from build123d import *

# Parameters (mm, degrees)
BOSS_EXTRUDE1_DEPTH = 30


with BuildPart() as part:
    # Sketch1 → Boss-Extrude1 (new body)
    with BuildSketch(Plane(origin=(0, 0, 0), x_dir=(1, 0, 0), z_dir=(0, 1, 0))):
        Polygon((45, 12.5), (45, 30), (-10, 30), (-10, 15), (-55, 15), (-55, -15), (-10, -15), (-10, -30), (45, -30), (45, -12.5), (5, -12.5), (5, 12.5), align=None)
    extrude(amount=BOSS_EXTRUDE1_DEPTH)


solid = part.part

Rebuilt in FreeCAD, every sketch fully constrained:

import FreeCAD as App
import Part
import Sketcher

V = App.Vector
Q = App.Units.Quantity


def add_polygon(sketch, points):
    """Adds a closed chain of lines whose ends are joined by coincident constraints."""
    first, n = sketch.GeometryCount, len(points)
    for a, b in zip(points, points[1:] + points[:1]):
        sketch.addGeometry(Part.LineSegment(App.Vector(*a, 0), App.Vector(*b, 0)), False)
    for i in range(n):
        sketch.addConstraint(Sketcher.Constraint("Coincident", first + i, 2, first + (i + 1) % n, 1))

doc = App.newDocument("Part")
body = doc.addObject("PartDesign::Body", "Body")

# Sketch on XZ plane
sketch1 = body.newObject("Sketcher::SketchObject", "Sketch")
sketch1.AttachmentSupport = (doc.getObject("XZ_Plane"), [""])
sketch1.MapMode = "FlatFace"
add_polygon(sketch1, [(45, -12), (45, -30), (-10, -30), (-10, -15), (-55, -15), (-55, 15), (-10, 15), (-10, 30), (45, 30), (45, 12), (5, 12), (5, -12)])  # lines 0-11
sketch1.addConstraint(Sketcher.Constraint("Vertical", 0))
sketch1.addConstraint(Sketcher.Constraint("Horizontal", 1))
sketch1.addConstraint(Sketcher.Constraint("Vertical", 2))
sketch1.addConstraint(Sketcher.Constraint("Horizontal", 3))
sketch1.addConstraint(Sketcher.Constraint("Vertical", 4))
sketch1.addConstraint(Sketcher.Constraint("Horizontal", 5))
sketch1.addConstraint(Sketcher.Constraint("Vertical", 6))
sketch1.addConstraint(Sketcher.Constraint("Horizontal", 7))
sketch1.addConstraint(Sketcher.Constraint("Vertical", 8))
sketch1.addConstraint(Sketcher.Constraint("Horizontal", 9))
sketch1.addConstraint(Sketcher.Constraint("Vertical", 10))
sketch1.addConstraint(Sketcher.Constraint("Horizontal", 11))
sketch1.addConstraint(Sketcher.Constraint("Symmetric", 2, 2, 5, 2, -1))
sketch1.addConstraint(Sketcher.Constraint("Symmetric", 0, 2, 7, 2, -1))
sketch1.addConstraint(Sketcher.Constraint("Equal", 0, 8))
sketch1.addConstraint(Sketcher.Constraint("DistanceX", 1, 2, 1, 1, Q("55 mm")))
sketch1.addConstraint(Sketcher.Constraint("DistanceX", 3, 2, 3, 1, Q("45 mm")))
sketch1.addConstraint(Sketcher.Constraint("DistanceX", 9, 2, 9, 1, Q("40 mm")))
sketch1.addConstraint(Sketcher.Constraint("DistanceY", 2, 1, 2, 2, Q("15 mm")))
sketch1.addConstraint(Sketcher.Constraint("DistanceY", 4, 1, 4, 2, Q("30 mm")))
sketch1.addConstraint(Sketcher.Constraint("DistanceY", 10, 2, 10, 1, Q("25 mm")))
sketch1.addConstraint(Sketcher.Constraint("DistanceX", -1, 1, 0, 2, Q("45 mm")))
pad1 = body.newObject("PartDesign::Pad", "Pad")
pad1.Profile = sketch1
pad1.Length = 30
pad1.Reversed = True

doc.recompute()
